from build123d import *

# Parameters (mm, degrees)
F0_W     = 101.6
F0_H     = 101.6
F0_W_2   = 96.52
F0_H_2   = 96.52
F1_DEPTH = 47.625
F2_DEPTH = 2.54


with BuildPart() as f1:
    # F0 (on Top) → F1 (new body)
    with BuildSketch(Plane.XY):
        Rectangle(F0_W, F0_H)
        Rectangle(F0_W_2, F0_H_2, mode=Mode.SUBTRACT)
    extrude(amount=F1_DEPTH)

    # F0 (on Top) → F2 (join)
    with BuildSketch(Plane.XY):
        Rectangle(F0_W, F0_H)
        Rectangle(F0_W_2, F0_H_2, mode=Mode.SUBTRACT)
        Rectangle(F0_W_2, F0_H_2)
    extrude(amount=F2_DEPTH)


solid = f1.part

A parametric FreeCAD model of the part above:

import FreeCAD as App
import Part
import Sketcher
from FreeCAD import Vector
Q = App.Units.Quantity

doc = App.newDocument("Part")
params = doc.addObject("Spreadsheet::Sheet", "Params")
for row, (alias, value) in enumerate([
    ("sketch1_width", "4 in"),
    ("sketch1_width2", "3.8 in"),
    ("pad1_length", "1.875 in"),
    ("sketch2_width", "4 in"),
    ("pad2_length", "0.1 in"),
], start=1):
    params.set(f"A{row}", alias)
    params.set(f"B{row}", "=" + value)
    params.setAlias(f"B{row}", alias)

body = doc.addObject("PartDesign::Body", "Body")

sketch1 = body.newObject("Sketcher::SketchObject", "Sketch")
sketch1.AttachmentSupport = (doc.getObject("XY_Plane"), [""])
sketch1.MapMode = "FlatFace"
sketch1.addGeometry([
    Part.LineSegment(Vector(-50.8, 50.8, 0), Vector(-50.8, -50.8, 0)),
    Part.LineSegment(Vector(-50.8, -50.8, 0), Vector(50.8, -50.8, 0)),
    Part.LineSegment(Vector(50.8, -50.8, 0), Vector(50.8, 50.8, 0)),
    Part.LineSegment(Vector(50.8, 50.8, 0), Vector(-50.8, 50.8, 0)),
    Part.LineSegment(Vector(48.26, -48.26, 0), Vector(-48.26, -48.26, 0)),
    Part.LineSegment(Vector(-48.26, -48.26, 0), Vector(-48.26, 48.26, 0)),
    Part.LineSegment(Vector(-48.26, 48.26, 0), Vector(48.26, 48.26, 0)),
    Part.LineSegment(Vector(48.26, 48.26, 0), Vector(48.26, -48.26, 0)),
], False)
sketch1.addConstraint([
    Sketcher.Constraint("Coincident", 0, 2, 1, 1),
    Sketcher.Constraint("Coincident", 1, 2, 2, 1),
    Sketcher.Constraint("Coincident", 2, 2, 3, 1),
    Sketcher.Constraint("Coincident", 3, 2, 0, 1),
    Sketcher.Constraint("Coincident", 4, 2, 5, 1),
    Sketcher.Constraint("Coincident", 5, 2, 6, 1),
    Sketcher.Constraint("Coincident", 6, 2, 7, 1),
    Sketcher.Constraint("Coincident", 7, 2, 4, 1),
    Sketcher.Constraint("Vertical", 0),
    Sketcher.Constraint("Horizontal", 1),
    Sketcher.Constraint("Vertical", 2),
    Sketcher.Constraint("Horizontal", 3),
    Sketcher.Constraint("Horizontal", 4),
    Sketcher.Constraint("Vertical", 5),
    Sketcher.Constraint("Horizontal", 6),
    Sketcher.Constraint("Vertical", 7),
    Sketcher.Constraint("Symmetric", 0, 2, 2, 2, -1, 1),
    Sketcher.Constraint("Symmetric", 4, 2, 6, 2, -1, 1),
    Sketcher.Constraint("Equal", 3, 0),
    Sketcher.Constraint("Equal", 6, 5),
    Sketcher.Constraint("DistanceX", 1, 1, 1, 2, Q("4 in")),
    Sketcher.Constraint("DistanceX", 4, 2, 4, 1, Q("3.8 in")),
])
sketch1.setExpression("Constraints[20]", "Params.sketch1_width")
sketch1.setExpression("Constraints[21]", "Params.sketch1_width2")
pad1 = body.newObject("PartDesign::Pad", "Pad")
pad1.Profile = sketch1
pad1.setExpression("Length", "Params.pad1_length")

sketch2 = body.newObject("Sketcher::SketchObject", "Sketch001")
sketch2.AttachmentSupport = (doc.getObject("XY_Plane"), [""])
sketch2.MapMode = "FlatFace"
sketch2.addGeometry([
    Part.LineSegment(Vector(-50.8, 50.8, 0), Vector(-50.8, -50.8, 0)),
    Part.LineSegment(Vector(-50.8, -50.8, 0), Vector(50.8, -50.8, 0)),
    Part.LineSegment(Vector(50.8, -50.8, 0), Vector(50.8, 50.8, 0)),
    Part.LineSegment(Vector(50.8, 50.8, 0), Vector(-50.8, 50.8, 0)),
], False)
sketch2.addConstraint([
    Sketcher.Constraint("Coincident", 0, 2, 1, 1),
    Sketcher.Constraint("Coincident", 1, 2, 2, 1),
    Sketcher.Constraint("Coincident", 2, 2, 3, 1),
    Sketcher.Constraint("Coincident", 3, 2, 0, 1),
    Sketcher.Constraint("Vertical", 0),
    Sketcher.Constraint("Horizontal", 1),
    Sketcher.Constraint("Vertical", 2),
    Sketcher.Constraint("Horizontal", 3),
    Sketcher.Constraint("Symmetric", 0, 2, 2, 2, -1, 1),
    Sketcher.Constraint("Equal", 3, 0),
    Sketcher.Constraint("DistanceX", 1, 1, 1, 2, Q("4 in")),
])
sketch2.setExpression("Constraints[10]", "Params.sketch2_width")
pad2 = body.newObject("PartDesign::Pad", "Pad001")
pad2.Profile = sketch2
pad2.setExpression("Length", "Params.pad2_length")

doc.recompute()
